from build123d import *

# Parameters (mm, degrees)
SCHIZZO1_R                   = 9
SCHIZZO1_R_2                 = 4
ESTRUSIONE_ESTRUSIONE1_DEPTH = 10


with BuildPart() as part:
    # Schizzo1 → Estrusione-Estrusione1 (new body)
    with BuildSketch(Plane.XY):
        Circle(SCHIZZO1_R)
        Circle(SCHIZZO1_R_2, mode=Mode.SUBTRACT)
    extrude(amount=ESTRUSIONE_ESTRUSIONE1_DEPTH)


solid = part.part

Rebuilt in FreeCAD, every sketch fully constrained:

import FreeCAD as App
import Part
import Sketcher

V = App.Vector
Q = App.Units.Quantity

doc = App.newDocument("Part")
body = doc.addObject("PartDesign::Body", "Body")

sketch1 = body.newObject("Sketcher::SketchObject", "Sketch")
sketch1.AttachmentSupport = (doc.getObject("XY_Plane"), [""])
sketch1.MapMode = "FlatFace"
sketch1.addGeometry([
    Part.Circle(V(0, 0, 0), V(0, 0, 1), 9),
    Part.Circle(V(0, 0, 0), V(0, 0, 1), 4),
], False)
sketch1.addConstraint([
    Sketcher.Constraint("Coincident", 0, 3, -1, 1),
    Sketcher.Constraint("Coincident", 1, 3, -1, 1),
    Sketcher.Constraint("Diameter", 0, Q("18 mm")),
    Sketcher.Constraint("Diameter", 1, Q("8 mm")),
])
pad1 = body.newObject("PartDesign::Pad", "Pad")
pad1.Profile = sketch1
pad1.Length = 10

doc.recompute()
